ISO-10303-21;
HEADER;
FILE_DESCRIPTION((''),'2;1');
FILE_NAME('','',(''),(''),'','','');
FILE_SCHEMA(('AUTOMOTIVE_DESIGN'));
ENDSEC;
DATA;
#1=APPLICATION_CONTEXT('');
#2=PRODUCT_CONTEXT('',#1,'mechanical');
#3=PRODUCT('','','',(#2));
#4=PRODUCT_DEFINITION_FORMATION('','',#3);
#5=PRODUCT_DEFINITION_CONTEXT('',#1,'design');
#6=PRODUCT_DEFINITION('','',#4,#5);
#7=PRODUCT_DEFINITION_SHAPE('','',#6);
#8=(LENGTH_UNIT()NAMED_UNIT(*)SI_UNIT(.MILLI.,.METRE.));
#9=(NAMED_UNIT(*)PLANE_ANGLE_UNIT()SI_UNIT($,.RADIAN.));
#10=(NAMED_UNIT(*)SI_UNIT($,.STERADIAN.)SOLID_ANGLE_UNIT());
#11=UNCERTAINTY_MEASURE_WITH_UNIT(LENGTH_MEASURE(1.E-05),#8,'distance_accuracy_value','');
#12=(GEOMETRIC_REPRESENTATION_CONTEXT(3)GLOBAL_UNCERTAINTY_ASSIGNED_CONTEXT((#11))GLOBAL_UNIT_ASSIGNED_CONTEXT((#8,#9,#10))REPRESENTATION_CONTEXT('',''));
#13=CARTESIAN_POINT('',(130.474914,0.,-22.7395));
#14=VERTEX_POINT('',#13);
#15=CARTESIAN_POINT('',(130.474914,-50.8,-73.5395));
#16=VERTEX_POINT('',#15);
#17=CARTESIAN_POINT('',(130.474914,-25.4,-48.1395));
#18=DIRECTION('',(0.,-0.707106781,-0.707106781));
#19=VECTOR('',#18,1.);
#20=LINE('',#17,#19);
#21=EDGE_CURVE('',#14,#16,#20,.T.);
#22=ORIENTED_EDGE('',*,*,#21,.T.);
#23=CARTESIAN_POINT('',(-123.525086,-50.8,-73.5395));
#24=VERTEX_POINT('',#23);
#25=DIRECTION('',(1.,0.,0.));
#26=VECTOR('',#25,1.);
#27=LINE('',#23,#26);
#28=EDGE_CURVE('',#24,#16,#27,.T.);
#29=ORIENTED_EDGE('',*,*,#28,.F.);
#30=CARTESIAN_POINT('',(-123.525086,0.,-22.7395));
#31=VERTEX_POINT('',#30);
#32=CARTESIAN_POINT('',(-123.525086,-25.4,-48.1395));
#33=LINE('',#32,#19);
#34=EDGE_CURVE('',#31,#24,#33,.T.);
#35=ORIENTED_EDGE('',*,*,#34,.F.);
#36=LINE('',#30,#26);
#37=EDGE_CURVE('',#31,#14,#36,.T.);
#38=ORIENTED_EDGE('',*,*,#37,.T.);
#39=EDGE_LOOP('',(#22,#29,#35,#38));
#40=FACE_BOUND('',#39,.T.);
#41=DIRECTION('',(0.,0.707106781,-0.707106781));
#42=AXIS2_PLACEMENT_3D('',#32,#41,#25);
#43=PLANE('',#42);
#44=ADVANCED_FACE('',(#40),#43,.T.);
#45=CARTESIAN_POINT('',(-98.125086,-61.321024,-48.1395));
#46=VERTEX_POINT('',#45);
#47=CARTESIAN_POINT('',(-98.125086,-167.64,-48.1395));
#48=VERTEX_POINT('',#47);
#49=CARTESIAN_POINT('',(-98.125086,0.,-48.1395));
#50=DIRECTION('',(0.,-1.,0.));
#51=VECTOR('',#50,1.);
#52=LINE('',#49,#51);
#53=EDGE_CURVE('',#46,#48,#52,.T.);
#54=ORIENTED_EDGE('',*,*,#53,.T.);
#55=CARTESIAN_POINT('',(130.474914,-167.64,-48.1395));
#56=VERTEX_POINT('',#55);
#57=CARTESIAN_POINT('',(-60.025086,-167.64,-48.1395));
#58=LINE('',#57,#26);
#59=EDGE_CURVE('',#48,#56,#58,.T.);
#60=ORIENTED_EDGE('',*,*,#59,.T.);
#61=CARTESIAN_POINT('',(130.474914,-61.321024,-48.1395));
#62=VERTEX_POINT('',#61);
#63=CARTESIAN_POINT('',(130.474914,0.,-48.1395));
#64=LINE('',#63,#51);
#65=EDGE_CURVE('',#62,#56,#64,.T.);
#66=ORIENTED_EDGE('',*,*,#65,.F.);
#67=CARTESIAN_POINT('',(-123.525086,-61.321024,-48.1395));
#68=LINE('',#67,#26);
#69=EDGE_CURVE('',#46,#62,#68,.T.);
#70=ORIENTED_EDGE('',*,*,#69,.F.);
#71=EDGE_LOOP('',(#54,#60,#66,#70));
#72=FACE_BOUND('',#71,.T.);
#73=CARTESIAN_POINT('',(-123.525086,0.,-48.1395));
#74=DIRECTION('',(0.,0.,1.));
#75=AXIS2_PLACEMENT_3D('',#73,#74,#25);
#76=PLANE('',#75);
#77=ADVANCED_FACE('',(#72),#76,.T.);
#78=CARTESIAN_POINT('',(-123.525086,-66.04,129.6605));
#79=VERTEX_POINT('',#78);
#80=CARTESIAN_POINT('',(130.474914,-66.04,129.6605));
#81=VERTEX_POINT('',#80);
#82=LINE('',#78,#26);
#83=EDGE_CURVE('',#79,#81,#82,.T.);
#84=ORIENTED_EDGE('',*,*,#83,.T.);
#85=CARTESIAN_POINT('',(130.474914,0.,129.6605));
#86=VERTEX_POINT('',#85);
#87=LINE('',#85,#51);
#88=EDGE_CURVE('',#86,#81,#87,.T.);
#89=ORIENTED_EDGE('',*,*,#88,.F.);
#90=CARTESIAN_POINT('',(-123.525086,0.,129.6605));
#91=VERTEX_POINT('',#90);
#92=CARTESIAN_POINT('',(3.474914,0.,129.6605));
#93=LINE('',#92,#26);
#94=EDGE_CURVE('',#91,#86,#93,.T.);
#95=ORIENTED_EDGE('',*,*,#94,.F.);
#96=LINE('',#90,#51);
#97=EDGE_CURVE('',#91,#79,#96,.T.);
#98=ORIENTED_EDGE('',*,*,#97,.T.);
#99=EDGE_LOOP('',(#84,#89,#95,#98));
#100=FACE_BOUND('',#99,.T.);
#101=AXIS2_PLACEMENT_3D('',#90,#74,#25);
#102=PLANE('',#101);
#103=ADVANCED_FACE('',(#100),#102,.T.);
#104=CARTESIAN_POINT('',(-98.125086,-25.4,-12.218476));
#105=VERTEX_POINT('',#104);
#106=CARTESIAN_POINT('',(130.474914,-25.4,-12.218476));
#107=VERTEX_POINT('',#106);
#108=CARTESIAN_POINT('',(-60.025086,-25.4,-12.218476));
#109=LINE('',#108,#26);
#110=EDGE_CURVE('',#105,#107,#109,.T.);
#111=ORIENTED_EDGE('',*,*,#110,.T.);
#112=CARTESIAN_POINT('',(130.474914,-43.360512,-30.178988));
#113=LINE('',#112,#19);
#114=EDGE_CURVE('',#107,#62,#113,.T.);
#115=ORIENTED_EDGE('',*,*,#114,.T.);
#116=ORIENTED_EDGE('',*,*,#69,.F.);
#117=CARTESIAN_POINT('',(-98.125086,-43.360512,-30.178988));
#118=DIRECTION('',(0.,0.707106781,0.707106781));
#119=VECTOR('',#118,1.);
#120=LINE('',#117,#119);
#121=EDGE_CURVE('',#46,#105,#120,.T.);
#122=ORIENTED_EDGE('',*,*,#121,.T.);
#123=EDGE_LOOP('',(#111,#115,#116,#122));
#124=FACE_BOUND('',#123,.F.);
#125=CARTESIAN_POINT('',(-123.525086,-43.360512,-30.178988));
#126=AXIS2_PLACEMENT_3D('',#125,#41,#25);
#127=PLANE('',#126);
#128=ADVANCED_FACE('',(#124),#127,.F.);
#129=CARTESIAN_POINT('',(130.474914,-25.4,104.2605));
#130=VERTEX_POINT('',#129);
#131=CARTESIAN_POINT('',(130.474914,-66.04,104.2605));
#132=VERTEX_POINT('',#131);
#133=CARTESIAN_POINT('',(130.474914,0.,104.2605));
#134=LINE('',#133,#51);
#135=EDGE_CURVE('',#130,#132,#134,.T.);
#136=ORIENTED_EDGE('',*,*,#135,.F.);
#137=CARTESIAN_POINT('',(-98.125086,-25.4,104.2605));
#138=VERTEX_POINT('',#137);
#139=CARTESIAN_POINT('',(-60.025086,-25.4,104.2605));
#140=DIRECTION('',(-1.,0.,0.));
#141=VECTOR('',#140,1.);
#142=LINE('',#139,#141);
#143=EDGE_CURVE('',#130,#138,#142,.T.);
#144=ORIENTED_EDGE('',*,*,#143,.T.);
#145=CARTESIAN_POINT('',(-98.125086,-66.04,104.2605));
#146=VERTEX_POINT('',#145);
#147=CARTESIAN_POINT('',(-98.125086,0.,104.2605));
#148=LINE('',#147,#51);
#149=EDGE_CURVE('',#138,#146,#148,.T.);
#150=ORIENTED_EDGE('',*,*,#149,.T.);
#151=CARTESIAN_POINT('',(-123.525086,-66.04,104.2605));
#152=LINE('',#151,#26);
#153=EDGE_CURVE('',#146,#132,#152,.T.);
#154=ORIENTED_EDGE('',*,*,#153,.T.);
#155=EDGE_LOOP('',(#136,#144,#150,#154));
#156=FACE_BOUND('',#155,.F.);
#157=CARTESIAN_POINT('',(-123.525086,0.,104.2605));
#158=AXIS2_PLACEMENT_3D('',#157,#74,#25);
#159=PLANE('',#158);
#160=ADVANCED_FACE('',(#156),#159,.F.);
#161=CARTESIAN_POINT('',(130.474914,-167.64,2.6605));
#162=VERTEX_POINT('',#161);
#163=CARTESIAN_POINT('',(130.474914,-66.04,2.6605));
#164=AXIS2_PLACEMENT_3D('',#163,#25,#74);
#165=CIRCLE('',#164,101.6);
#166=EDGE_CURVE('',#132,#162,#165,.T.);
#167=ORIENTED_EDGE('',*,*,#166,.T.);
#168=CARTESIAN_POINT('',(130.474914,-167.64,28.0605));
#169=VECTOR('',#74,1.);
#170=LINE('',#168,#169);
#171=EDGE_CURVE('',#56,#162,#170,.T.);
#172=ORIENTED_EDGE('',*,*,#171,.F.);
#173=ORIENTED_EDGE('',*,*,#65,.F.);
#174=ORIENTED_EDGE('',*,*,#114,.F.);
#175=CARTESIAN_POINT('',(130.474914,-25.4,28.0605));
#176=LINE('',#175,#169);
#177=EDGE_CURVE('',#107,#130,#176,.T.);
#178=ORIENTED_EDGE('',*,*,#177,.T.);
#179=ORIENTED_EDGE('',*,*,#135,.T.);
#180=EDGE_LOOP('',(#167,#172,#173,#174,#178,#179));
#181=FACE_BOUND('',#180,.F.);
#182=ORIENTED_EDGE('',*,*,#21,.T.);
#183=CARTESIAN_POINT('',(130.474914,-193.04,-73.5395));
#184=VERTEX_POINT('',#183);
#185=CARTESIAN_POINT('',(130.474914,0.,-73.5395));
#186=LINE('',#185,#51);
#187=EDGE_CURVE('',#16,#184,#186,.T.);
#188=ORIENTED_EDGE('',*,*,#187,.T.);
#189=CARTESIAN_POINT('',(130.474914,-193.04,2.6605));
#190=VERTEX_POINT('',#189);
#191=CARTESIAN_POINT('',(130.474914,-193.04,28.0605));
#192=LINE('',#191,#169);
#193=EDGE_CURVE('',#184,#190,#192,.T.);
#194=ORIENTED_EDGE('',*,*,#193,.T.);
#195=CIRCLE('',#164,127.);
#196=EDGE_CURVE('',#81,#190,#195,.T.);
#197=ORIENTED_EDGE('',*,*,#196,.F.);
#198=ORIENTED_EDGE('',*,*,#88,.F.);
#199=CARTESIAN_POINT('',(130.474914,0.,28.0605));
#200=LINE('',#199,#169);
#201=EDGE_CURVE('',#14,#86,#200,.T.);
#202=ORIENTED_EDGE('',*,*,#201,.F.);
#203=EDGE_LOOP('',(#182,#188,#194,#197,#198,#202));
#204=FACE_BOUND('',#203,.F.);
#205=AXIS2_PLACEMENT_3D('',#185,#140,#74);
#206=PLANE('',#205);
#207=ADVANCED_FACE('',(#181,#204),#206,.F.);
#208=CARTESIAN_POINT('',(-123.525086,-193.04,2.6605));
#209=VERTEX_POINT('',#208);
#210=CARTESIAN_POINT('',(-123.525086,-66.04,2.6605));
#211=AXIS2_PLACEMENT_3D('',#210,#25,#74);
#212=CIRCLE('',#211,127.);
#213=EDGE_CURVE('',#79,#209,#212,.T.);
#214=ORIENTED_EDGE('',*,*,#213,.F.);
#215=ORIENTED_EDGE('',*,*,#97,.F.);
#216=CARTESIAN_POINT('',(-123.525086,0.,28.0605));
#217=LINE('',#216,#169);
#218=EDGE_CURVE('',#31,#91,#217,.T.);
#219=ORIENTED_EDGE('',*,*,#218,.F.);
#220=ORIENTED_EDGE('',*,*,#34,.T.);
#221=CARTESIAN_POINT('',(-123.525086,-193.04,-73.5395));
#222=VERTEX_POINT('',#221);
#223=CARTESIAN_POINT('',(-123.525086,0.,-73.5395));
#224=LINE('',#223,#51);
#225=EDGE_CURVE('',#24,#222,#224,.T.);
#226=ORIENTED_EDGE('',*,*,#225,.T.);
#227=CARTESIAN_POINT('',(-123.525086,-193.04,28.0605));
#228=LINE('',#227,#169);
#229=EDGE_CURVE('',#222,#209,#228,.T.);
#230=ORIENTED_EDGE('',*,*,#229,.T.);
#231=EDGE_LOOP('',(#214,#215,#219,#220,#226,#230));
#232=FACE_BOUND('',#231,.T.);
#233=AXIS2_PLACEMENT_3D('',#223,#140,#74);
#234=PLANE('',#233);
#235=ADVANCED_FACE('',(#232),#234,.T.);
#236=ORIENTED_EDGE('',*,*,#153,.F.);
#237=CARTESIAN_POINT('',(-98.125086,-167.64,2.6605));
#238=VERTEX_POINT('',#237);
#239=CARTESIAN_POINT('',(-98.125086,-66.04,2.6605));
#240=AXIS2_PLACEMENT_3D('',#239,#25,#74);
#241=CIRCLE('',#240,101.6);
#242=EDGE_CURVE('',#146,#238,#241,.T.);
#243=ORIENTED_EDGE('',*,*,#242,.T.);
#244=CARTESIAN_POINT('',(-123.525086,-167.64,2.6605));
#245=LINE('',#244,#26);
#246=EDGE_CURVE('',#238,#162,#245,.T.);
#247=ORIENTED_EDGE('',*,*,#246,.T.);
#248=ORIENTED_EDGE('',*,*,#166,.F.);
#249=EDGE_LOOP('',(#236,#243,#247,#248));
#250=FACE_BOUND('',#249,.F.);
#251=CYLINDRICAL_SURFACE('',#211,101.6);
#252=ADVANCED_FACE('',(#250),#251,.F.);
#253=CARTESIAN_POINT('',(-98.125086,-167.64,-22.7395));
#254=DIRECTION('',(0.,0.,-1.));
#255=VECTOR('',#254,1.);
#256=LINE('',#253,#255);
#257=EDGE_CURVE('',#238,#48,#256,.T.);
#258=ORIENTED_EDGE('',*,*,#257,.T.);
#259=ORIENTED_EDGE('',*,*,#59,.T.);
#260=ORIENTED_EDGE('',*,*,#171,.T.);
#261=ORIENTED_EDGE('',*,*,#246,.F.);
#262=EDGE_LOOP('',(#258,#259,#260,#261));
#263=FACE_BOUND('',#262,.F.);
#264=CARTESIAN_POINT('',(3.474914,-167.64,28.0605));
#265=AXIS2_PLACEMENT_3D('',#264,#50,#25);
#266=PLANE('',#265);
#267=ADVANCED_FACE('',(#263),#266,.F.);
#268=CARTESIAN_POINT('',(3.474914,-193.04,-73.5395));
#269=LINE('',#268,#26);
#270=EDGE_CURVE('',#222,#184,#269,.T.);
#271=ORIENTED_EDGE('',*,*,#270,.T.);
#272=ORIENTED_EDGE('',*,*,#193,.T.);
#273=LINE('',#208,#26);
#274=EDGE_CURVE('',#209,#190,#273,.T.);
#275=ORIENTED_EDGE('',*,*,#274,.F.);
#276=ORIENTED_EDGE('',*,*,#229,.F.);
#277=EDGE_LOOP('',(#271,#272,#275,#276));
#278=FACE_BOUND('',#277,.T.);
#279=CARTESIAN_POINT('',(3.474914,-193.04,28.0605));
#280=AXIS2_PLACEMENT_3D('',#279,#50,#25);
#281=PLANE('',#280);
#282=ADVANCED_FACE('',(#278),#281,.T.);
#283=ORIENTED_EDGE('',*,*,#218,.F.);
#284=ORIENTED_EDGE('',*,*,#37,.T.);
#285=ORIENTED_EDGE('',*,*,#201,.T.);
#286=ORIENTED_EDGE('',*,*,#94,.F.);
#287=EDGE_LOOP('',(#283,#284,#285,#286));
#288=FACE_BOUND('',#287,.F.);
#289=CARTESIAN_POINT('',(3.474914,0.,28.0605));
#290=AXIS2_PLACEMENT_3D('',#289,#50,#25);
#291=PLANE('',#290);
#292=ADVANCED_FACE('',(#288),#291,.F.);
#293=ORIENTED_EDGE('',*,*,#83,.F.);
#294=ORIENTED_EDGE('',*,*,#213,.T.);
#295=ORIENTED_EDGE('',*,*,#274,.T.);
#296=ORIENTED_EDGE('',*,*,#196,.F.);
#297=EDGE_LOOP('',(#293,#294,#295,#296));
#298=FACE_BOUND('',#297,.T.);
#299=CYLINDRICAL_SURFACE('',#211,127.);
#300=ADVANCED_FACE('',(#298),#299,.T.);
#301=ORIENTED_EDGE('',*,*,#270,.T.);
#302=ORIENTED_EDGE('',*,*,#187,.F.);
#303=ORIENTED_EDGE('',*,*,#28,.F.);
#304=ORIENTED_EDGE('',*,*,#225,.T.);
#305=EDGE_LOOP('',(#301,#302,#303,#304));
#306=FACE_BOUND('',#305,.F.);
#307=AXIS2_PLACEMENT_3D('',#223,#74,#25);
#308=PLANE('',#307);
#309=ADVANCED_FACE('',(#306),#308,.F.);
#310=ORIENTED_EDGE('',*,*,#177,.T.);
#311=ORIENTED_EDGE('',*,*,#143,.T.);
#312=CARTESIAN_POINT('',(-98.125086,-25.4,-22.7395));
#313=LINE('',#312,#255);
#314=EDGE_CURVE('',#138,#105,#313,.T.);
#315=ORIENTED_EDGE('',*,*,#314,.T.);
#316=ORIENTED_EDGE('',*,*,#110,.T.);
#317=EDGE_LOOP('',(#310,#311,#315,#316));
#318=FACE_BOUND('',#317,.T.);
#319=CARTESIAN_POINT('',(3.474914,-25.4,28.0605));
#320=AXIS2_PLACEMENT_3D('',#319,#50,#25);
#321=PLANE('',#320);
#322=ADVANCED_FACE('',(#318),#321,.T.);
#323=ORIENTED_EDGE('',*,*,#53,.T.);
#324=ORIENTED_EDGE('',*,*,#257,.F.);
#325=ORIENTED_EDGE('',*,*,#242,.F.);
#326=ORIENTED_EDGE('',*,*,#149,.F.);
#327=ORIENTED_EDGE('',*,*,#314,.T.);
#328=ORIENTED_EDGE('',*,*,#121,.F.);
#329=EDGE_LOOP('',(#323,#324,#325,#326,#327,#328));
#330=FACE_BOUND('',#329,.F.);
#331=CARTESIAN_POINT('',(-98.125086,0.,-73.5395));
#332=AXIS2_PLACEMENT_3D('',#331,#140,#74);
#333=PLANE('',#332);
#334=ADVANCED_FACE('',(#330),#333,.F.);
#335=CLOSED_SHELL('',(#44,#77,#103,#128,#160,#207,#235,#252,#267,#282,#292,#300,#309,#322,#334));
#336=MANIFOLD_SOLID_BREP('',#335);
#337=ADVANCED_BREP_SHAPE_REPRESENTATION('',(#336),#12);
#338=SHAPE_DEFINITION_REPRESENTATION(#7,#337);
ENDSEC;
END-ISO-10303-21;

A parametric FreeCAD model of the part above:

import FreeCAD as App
import Part
import Sketcher
from FreeCAD import Vector
Q = App.Units.Quantity


def edges_at(feature, points):
    """Names of the edges that pass closest to the given points."""
    edges = feature.Shape.Edges
    near = lambda p: min(range(len(edges)), key=lambda i: edges[i].distToShape(Part.Vertex(*p))[0])
    return sorted({f"Edge{near(p) + 1}" for p in points})


def faces_at(feature, points):
    """Names of the faces that lie closest to the given points."""
    faces = feature.Shape.Faces
    near = lambda p: min(range(len(faces)), key=lambda i: faces[i].distToShape(Part.Vertex(*p))[0])
    return sorted({f"Face{near(p) + 1}" for p in points})


def add_polygon(sketch, points):
    """Adds a closed chain of lines whose ends are joined by coincident constraints."""
    first, n = sketch.GeometryCount, len(points)
    for a, b in zip(points, points[1:] + points[:1]):
        sketch.addGeometry(Part.LineSegment(App.Vector(*a, 0), App.Vector(*b, 0)), False)
    for i in range(n):
        sketch.addConstraint(Sketcher.Constraint("Coincident", first + i, 2, first + (i + 1) % n, 1))

doc = App.newDocument("Part")
body = doc.addObject("PartDesign::Body", "Body")

sketch1 = body.newObject("Sketcher::SketchObject", "Sketch")
sketch1.AttachmentSupport = (doc.getObject("XZ_Plane"), [""])
sketch1.MapMode = "FlatFace"
add_polygon(sketch1, [(-124, 130), (-124, -74), (130, -74), (130, 130)])
sketch1.addConstraint([
    Sketcher.Constraint("Vertical", 0),
    Sketcher.Constraint("Horizontal", 1),
    Sketcher.Constraint("Vertical", 2),
    Sketcher.Constraint("Horizontal", 3),
    Sketcher.Constraint("DistanceX", 1, 1, 1, 2, Q("10 in")),
    Sketcher.Constraint("DistanceY", 0, 2, 0, 1, Q("8 in")),
    Sketcher.Constraint("DistanceY", 0, 2, -1, 1, Q("73.5395 mm")),
    Sketcher.Constraint("DistanceX", 0, 2, -1, 1, Q("123.525086 mm")),
])
pad1 = body.newObject("PartDesign::Pad", "Pad")
pad1.Profile = sketch1
pad1.Length = Q("7.6 in")
doc.recompute()

fillet = body.newObject("PartDesign::Fillet", "Fillet")
fillet.Base = (pad1, edges_at(pad1, [(3.475, -193.04, 129.661)]))
fillet.Radius = Q("5 in")
doc.recompute()

chamfer = body.newObject("PartDesign::Chamfer", "Chamfer")
chamfer.Base = (fillet, edges_at(fillet, [(3.475, 0, -73.54)]))
chamfer.Size = Q("2 in")
doc.recompute()

thickness = body.newObject("PartDesign::Thickness", "Thickness")
thickness.Base = (chamfer, faces_at(chamfer, [(130.475, -96.52, 28.061)]))
thickness.Value = Q("1 in")
thickness.Reversed = True
thickness.Join = "Arc"

doc.recompute()
